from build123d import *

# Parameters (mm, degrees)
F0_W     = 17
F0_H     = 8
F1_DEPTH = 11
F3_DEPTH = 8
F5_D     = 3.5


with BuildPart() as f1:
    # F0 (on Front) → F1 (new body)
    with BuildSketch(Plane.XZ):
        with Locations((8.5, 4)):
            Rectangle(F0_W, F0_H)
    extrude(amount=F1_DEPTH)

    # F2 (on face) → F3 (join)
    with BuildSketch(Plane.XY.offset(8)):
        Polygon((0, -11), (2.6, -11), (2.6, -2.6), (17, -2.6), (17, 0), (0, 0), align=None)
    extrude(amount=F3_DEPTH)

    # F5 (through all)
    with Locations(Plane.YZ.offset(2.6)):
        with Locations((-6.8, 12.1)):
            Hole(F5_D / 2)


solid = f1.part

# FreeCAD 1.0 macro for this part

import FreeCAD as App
import Part
import Sketcher

doc = App.newDocument("Part")
body = doc.addObject("PartDesign::Body", "Body")

# Sketch on XZ plane
sketch1 = doc.addObject("Sketcher::SketchObject", "Sketch")
body.addObject(sketch1)
sketch1.AttachmentSupport = (doc.XZ_Plane, [""])
sketch1.MapMode = "FlatFace"
sketch1.addGeometry([
    Part.LineSegment(App.Vector(0, 8, 0), App.Vector(0, 0, 0)),
    Part.LineSegment(App.Vector(0, 0, 0), App.Vector(17, 0, 0)),
    Part.LineSegment(App.Vector(17, 0, 0), App.Vector(17, 8, 0)),
    Part.LineSegment(App.Vector(17, 8, 0), App.Vector(0, 8, 0)),
], False)
sketch1.addConstraint([
    Sketcher.Constraint("Coincident", 0, 2, 1, 1),
    Sketcher.Constraint("Coincident", 1, 2, 2, 1),
    Sketcher.Constraint("Coincident", 2, 2, 3, 1),
    Sketcher.Constraint("Coincident", 3, 2, 0, 1),
    Sketcher.Constraint("Vertical", 0),
    Sketcher.Constraint("Horizontal", 1),
    Sketcher.Constraint("Vertical", 2),
    Sketcher.Constraint("Horizontal", 3),
    Sketcher.Constraint("Coincident", 0, 2, -1, 1),
    Sketcher.Constraint("DistanceX", 1, 1, 1, 2, 17.0),
    Sketcher.Constraint("DistanceY", 0, 2, 0, 1, 8.0),
])
pad1 = doc.addObject("PartDesign::Pad", "Pad")
body.addObject(pad1)
pad1.Profile = sketch1
pad1.Length = 11

# Sketch on XY plane
sketch2 = doc.addObject("Sketcher::SketchObject", "Sketch001")
body.addObject(sketch2)
sketch2.AttachmentSupport = (doc.XY_Plane, [""])
sketch2.MapMode = "FlatFace"
sketch2.AttachmentOffset = App.Placement(App.Vector(0, 0, 8), App.Rotation())
sketch2.addGeometry([
    Part.LineSegment(App.Vector(0, -11, 0), App.Vector(2.6, -11, 0)),  # 0
    Part.LineSegment(App.Vector(2.6, -11, 0), App.Vector(2.6, -2.6, 0)),  # 1
    Part.LineSegment(App.Vector(2.6, -2.6, 0), App.Vector(17, -2.6, 0)),  # 2
    Part.LineSegment(App.Vector(17, -2.6, 0), App.Vector(17, 0, 0)),  # 3
    Part.LineSegment(App.Vector(17, 0, 0), App.Vector(0, 0, 0)),  # 4
    Part.LineSegment(App.Vector(0, 0, 0), App.Vector(0, -11, 0)),  # 5
], False)
sketch2.addConstraint([
    Sketcher.Constraint("Coincident", 0, 2, 1, 1),
    Sketcher.Constraint("Coincident", 1, 2, 2, 1),
    Sketcher.Constraint("Coincident", 2, 2, 3, 1),
    Sketcher.Constraint("Coincident", 3, 2, 4, 1),
    Sketcher.Constraint("Coincident", 4, 2, 5, 1),
    Sketcher.Constraint("Coincident", 5, 2, 0, 1),
    Sketcher.Constraint("Horizontal", 0),
    Sketcher.Constraint("Vertical", 1),
    Sketcher.Constraint("Horizontal", 2),
    Sketcher.Constraint("Vertical", 3),
    Sketcher.Constraint("Horizontal", 4),
    Sketcher.Constraint("Vertical", 5),
    Sketcher.Constraint("Coincident", 4, 2, -1, 1),
    Sketcher.Constraint("Equal", 0, 3),
    Sketcher.Constraint("DistanceX", 4, 2, 4, 1, 17.0),
    Sketcher.Constraint("DistanceY", 5, 2, 5, 1, 11.0),
    Sketcher.Constraint("DistanceX", 0, 1, 0, 2, 2.6),
])
pad2 = doc.addObject("PartDesign::Pad", "Pad001")
body.addObject(pad2)
pad2.Profile = sketch2
pad2.Length = 8

# Sketch on YZ plane
sketch3 = doc.addObject("Sketcher::SketchObject", "Sketch002")
body.addObject(sketch3)
sketch3.AttachmentSupport = (doc.YZ_Plane, [""])
sketch3.MapMode = "FlatFace"
sketch3.AttachmentOffset = App.Placement(App.Vector(0, 0, 2.6), App.Rotation())
sketch3.addGeometry(Part.Circle(App.Vector(-6.8, 12.1, 0), App.Vector(0, 0, 1), 1.8), False)
sketch3.addConstraint([
    Sketcher.Constraint("Diameter", 0, 3.5),
    Sketcher.Constraint("DistanceX", 0, 3, -1, 1, 6.8),
    Sketcher.Constraint("DistanceY", -1, 1, 0, 3, 12.1),
])
doc.recompute()
hole = doc.addObject("PartDesign::Hole", "Hole")
body.addObject(hole)
hole.Profile = sketch3
hole.ThreadType = "None"
hole.Diameter = 3.5
hole.DepthType = "ThroughAll"

doc.recompute()
